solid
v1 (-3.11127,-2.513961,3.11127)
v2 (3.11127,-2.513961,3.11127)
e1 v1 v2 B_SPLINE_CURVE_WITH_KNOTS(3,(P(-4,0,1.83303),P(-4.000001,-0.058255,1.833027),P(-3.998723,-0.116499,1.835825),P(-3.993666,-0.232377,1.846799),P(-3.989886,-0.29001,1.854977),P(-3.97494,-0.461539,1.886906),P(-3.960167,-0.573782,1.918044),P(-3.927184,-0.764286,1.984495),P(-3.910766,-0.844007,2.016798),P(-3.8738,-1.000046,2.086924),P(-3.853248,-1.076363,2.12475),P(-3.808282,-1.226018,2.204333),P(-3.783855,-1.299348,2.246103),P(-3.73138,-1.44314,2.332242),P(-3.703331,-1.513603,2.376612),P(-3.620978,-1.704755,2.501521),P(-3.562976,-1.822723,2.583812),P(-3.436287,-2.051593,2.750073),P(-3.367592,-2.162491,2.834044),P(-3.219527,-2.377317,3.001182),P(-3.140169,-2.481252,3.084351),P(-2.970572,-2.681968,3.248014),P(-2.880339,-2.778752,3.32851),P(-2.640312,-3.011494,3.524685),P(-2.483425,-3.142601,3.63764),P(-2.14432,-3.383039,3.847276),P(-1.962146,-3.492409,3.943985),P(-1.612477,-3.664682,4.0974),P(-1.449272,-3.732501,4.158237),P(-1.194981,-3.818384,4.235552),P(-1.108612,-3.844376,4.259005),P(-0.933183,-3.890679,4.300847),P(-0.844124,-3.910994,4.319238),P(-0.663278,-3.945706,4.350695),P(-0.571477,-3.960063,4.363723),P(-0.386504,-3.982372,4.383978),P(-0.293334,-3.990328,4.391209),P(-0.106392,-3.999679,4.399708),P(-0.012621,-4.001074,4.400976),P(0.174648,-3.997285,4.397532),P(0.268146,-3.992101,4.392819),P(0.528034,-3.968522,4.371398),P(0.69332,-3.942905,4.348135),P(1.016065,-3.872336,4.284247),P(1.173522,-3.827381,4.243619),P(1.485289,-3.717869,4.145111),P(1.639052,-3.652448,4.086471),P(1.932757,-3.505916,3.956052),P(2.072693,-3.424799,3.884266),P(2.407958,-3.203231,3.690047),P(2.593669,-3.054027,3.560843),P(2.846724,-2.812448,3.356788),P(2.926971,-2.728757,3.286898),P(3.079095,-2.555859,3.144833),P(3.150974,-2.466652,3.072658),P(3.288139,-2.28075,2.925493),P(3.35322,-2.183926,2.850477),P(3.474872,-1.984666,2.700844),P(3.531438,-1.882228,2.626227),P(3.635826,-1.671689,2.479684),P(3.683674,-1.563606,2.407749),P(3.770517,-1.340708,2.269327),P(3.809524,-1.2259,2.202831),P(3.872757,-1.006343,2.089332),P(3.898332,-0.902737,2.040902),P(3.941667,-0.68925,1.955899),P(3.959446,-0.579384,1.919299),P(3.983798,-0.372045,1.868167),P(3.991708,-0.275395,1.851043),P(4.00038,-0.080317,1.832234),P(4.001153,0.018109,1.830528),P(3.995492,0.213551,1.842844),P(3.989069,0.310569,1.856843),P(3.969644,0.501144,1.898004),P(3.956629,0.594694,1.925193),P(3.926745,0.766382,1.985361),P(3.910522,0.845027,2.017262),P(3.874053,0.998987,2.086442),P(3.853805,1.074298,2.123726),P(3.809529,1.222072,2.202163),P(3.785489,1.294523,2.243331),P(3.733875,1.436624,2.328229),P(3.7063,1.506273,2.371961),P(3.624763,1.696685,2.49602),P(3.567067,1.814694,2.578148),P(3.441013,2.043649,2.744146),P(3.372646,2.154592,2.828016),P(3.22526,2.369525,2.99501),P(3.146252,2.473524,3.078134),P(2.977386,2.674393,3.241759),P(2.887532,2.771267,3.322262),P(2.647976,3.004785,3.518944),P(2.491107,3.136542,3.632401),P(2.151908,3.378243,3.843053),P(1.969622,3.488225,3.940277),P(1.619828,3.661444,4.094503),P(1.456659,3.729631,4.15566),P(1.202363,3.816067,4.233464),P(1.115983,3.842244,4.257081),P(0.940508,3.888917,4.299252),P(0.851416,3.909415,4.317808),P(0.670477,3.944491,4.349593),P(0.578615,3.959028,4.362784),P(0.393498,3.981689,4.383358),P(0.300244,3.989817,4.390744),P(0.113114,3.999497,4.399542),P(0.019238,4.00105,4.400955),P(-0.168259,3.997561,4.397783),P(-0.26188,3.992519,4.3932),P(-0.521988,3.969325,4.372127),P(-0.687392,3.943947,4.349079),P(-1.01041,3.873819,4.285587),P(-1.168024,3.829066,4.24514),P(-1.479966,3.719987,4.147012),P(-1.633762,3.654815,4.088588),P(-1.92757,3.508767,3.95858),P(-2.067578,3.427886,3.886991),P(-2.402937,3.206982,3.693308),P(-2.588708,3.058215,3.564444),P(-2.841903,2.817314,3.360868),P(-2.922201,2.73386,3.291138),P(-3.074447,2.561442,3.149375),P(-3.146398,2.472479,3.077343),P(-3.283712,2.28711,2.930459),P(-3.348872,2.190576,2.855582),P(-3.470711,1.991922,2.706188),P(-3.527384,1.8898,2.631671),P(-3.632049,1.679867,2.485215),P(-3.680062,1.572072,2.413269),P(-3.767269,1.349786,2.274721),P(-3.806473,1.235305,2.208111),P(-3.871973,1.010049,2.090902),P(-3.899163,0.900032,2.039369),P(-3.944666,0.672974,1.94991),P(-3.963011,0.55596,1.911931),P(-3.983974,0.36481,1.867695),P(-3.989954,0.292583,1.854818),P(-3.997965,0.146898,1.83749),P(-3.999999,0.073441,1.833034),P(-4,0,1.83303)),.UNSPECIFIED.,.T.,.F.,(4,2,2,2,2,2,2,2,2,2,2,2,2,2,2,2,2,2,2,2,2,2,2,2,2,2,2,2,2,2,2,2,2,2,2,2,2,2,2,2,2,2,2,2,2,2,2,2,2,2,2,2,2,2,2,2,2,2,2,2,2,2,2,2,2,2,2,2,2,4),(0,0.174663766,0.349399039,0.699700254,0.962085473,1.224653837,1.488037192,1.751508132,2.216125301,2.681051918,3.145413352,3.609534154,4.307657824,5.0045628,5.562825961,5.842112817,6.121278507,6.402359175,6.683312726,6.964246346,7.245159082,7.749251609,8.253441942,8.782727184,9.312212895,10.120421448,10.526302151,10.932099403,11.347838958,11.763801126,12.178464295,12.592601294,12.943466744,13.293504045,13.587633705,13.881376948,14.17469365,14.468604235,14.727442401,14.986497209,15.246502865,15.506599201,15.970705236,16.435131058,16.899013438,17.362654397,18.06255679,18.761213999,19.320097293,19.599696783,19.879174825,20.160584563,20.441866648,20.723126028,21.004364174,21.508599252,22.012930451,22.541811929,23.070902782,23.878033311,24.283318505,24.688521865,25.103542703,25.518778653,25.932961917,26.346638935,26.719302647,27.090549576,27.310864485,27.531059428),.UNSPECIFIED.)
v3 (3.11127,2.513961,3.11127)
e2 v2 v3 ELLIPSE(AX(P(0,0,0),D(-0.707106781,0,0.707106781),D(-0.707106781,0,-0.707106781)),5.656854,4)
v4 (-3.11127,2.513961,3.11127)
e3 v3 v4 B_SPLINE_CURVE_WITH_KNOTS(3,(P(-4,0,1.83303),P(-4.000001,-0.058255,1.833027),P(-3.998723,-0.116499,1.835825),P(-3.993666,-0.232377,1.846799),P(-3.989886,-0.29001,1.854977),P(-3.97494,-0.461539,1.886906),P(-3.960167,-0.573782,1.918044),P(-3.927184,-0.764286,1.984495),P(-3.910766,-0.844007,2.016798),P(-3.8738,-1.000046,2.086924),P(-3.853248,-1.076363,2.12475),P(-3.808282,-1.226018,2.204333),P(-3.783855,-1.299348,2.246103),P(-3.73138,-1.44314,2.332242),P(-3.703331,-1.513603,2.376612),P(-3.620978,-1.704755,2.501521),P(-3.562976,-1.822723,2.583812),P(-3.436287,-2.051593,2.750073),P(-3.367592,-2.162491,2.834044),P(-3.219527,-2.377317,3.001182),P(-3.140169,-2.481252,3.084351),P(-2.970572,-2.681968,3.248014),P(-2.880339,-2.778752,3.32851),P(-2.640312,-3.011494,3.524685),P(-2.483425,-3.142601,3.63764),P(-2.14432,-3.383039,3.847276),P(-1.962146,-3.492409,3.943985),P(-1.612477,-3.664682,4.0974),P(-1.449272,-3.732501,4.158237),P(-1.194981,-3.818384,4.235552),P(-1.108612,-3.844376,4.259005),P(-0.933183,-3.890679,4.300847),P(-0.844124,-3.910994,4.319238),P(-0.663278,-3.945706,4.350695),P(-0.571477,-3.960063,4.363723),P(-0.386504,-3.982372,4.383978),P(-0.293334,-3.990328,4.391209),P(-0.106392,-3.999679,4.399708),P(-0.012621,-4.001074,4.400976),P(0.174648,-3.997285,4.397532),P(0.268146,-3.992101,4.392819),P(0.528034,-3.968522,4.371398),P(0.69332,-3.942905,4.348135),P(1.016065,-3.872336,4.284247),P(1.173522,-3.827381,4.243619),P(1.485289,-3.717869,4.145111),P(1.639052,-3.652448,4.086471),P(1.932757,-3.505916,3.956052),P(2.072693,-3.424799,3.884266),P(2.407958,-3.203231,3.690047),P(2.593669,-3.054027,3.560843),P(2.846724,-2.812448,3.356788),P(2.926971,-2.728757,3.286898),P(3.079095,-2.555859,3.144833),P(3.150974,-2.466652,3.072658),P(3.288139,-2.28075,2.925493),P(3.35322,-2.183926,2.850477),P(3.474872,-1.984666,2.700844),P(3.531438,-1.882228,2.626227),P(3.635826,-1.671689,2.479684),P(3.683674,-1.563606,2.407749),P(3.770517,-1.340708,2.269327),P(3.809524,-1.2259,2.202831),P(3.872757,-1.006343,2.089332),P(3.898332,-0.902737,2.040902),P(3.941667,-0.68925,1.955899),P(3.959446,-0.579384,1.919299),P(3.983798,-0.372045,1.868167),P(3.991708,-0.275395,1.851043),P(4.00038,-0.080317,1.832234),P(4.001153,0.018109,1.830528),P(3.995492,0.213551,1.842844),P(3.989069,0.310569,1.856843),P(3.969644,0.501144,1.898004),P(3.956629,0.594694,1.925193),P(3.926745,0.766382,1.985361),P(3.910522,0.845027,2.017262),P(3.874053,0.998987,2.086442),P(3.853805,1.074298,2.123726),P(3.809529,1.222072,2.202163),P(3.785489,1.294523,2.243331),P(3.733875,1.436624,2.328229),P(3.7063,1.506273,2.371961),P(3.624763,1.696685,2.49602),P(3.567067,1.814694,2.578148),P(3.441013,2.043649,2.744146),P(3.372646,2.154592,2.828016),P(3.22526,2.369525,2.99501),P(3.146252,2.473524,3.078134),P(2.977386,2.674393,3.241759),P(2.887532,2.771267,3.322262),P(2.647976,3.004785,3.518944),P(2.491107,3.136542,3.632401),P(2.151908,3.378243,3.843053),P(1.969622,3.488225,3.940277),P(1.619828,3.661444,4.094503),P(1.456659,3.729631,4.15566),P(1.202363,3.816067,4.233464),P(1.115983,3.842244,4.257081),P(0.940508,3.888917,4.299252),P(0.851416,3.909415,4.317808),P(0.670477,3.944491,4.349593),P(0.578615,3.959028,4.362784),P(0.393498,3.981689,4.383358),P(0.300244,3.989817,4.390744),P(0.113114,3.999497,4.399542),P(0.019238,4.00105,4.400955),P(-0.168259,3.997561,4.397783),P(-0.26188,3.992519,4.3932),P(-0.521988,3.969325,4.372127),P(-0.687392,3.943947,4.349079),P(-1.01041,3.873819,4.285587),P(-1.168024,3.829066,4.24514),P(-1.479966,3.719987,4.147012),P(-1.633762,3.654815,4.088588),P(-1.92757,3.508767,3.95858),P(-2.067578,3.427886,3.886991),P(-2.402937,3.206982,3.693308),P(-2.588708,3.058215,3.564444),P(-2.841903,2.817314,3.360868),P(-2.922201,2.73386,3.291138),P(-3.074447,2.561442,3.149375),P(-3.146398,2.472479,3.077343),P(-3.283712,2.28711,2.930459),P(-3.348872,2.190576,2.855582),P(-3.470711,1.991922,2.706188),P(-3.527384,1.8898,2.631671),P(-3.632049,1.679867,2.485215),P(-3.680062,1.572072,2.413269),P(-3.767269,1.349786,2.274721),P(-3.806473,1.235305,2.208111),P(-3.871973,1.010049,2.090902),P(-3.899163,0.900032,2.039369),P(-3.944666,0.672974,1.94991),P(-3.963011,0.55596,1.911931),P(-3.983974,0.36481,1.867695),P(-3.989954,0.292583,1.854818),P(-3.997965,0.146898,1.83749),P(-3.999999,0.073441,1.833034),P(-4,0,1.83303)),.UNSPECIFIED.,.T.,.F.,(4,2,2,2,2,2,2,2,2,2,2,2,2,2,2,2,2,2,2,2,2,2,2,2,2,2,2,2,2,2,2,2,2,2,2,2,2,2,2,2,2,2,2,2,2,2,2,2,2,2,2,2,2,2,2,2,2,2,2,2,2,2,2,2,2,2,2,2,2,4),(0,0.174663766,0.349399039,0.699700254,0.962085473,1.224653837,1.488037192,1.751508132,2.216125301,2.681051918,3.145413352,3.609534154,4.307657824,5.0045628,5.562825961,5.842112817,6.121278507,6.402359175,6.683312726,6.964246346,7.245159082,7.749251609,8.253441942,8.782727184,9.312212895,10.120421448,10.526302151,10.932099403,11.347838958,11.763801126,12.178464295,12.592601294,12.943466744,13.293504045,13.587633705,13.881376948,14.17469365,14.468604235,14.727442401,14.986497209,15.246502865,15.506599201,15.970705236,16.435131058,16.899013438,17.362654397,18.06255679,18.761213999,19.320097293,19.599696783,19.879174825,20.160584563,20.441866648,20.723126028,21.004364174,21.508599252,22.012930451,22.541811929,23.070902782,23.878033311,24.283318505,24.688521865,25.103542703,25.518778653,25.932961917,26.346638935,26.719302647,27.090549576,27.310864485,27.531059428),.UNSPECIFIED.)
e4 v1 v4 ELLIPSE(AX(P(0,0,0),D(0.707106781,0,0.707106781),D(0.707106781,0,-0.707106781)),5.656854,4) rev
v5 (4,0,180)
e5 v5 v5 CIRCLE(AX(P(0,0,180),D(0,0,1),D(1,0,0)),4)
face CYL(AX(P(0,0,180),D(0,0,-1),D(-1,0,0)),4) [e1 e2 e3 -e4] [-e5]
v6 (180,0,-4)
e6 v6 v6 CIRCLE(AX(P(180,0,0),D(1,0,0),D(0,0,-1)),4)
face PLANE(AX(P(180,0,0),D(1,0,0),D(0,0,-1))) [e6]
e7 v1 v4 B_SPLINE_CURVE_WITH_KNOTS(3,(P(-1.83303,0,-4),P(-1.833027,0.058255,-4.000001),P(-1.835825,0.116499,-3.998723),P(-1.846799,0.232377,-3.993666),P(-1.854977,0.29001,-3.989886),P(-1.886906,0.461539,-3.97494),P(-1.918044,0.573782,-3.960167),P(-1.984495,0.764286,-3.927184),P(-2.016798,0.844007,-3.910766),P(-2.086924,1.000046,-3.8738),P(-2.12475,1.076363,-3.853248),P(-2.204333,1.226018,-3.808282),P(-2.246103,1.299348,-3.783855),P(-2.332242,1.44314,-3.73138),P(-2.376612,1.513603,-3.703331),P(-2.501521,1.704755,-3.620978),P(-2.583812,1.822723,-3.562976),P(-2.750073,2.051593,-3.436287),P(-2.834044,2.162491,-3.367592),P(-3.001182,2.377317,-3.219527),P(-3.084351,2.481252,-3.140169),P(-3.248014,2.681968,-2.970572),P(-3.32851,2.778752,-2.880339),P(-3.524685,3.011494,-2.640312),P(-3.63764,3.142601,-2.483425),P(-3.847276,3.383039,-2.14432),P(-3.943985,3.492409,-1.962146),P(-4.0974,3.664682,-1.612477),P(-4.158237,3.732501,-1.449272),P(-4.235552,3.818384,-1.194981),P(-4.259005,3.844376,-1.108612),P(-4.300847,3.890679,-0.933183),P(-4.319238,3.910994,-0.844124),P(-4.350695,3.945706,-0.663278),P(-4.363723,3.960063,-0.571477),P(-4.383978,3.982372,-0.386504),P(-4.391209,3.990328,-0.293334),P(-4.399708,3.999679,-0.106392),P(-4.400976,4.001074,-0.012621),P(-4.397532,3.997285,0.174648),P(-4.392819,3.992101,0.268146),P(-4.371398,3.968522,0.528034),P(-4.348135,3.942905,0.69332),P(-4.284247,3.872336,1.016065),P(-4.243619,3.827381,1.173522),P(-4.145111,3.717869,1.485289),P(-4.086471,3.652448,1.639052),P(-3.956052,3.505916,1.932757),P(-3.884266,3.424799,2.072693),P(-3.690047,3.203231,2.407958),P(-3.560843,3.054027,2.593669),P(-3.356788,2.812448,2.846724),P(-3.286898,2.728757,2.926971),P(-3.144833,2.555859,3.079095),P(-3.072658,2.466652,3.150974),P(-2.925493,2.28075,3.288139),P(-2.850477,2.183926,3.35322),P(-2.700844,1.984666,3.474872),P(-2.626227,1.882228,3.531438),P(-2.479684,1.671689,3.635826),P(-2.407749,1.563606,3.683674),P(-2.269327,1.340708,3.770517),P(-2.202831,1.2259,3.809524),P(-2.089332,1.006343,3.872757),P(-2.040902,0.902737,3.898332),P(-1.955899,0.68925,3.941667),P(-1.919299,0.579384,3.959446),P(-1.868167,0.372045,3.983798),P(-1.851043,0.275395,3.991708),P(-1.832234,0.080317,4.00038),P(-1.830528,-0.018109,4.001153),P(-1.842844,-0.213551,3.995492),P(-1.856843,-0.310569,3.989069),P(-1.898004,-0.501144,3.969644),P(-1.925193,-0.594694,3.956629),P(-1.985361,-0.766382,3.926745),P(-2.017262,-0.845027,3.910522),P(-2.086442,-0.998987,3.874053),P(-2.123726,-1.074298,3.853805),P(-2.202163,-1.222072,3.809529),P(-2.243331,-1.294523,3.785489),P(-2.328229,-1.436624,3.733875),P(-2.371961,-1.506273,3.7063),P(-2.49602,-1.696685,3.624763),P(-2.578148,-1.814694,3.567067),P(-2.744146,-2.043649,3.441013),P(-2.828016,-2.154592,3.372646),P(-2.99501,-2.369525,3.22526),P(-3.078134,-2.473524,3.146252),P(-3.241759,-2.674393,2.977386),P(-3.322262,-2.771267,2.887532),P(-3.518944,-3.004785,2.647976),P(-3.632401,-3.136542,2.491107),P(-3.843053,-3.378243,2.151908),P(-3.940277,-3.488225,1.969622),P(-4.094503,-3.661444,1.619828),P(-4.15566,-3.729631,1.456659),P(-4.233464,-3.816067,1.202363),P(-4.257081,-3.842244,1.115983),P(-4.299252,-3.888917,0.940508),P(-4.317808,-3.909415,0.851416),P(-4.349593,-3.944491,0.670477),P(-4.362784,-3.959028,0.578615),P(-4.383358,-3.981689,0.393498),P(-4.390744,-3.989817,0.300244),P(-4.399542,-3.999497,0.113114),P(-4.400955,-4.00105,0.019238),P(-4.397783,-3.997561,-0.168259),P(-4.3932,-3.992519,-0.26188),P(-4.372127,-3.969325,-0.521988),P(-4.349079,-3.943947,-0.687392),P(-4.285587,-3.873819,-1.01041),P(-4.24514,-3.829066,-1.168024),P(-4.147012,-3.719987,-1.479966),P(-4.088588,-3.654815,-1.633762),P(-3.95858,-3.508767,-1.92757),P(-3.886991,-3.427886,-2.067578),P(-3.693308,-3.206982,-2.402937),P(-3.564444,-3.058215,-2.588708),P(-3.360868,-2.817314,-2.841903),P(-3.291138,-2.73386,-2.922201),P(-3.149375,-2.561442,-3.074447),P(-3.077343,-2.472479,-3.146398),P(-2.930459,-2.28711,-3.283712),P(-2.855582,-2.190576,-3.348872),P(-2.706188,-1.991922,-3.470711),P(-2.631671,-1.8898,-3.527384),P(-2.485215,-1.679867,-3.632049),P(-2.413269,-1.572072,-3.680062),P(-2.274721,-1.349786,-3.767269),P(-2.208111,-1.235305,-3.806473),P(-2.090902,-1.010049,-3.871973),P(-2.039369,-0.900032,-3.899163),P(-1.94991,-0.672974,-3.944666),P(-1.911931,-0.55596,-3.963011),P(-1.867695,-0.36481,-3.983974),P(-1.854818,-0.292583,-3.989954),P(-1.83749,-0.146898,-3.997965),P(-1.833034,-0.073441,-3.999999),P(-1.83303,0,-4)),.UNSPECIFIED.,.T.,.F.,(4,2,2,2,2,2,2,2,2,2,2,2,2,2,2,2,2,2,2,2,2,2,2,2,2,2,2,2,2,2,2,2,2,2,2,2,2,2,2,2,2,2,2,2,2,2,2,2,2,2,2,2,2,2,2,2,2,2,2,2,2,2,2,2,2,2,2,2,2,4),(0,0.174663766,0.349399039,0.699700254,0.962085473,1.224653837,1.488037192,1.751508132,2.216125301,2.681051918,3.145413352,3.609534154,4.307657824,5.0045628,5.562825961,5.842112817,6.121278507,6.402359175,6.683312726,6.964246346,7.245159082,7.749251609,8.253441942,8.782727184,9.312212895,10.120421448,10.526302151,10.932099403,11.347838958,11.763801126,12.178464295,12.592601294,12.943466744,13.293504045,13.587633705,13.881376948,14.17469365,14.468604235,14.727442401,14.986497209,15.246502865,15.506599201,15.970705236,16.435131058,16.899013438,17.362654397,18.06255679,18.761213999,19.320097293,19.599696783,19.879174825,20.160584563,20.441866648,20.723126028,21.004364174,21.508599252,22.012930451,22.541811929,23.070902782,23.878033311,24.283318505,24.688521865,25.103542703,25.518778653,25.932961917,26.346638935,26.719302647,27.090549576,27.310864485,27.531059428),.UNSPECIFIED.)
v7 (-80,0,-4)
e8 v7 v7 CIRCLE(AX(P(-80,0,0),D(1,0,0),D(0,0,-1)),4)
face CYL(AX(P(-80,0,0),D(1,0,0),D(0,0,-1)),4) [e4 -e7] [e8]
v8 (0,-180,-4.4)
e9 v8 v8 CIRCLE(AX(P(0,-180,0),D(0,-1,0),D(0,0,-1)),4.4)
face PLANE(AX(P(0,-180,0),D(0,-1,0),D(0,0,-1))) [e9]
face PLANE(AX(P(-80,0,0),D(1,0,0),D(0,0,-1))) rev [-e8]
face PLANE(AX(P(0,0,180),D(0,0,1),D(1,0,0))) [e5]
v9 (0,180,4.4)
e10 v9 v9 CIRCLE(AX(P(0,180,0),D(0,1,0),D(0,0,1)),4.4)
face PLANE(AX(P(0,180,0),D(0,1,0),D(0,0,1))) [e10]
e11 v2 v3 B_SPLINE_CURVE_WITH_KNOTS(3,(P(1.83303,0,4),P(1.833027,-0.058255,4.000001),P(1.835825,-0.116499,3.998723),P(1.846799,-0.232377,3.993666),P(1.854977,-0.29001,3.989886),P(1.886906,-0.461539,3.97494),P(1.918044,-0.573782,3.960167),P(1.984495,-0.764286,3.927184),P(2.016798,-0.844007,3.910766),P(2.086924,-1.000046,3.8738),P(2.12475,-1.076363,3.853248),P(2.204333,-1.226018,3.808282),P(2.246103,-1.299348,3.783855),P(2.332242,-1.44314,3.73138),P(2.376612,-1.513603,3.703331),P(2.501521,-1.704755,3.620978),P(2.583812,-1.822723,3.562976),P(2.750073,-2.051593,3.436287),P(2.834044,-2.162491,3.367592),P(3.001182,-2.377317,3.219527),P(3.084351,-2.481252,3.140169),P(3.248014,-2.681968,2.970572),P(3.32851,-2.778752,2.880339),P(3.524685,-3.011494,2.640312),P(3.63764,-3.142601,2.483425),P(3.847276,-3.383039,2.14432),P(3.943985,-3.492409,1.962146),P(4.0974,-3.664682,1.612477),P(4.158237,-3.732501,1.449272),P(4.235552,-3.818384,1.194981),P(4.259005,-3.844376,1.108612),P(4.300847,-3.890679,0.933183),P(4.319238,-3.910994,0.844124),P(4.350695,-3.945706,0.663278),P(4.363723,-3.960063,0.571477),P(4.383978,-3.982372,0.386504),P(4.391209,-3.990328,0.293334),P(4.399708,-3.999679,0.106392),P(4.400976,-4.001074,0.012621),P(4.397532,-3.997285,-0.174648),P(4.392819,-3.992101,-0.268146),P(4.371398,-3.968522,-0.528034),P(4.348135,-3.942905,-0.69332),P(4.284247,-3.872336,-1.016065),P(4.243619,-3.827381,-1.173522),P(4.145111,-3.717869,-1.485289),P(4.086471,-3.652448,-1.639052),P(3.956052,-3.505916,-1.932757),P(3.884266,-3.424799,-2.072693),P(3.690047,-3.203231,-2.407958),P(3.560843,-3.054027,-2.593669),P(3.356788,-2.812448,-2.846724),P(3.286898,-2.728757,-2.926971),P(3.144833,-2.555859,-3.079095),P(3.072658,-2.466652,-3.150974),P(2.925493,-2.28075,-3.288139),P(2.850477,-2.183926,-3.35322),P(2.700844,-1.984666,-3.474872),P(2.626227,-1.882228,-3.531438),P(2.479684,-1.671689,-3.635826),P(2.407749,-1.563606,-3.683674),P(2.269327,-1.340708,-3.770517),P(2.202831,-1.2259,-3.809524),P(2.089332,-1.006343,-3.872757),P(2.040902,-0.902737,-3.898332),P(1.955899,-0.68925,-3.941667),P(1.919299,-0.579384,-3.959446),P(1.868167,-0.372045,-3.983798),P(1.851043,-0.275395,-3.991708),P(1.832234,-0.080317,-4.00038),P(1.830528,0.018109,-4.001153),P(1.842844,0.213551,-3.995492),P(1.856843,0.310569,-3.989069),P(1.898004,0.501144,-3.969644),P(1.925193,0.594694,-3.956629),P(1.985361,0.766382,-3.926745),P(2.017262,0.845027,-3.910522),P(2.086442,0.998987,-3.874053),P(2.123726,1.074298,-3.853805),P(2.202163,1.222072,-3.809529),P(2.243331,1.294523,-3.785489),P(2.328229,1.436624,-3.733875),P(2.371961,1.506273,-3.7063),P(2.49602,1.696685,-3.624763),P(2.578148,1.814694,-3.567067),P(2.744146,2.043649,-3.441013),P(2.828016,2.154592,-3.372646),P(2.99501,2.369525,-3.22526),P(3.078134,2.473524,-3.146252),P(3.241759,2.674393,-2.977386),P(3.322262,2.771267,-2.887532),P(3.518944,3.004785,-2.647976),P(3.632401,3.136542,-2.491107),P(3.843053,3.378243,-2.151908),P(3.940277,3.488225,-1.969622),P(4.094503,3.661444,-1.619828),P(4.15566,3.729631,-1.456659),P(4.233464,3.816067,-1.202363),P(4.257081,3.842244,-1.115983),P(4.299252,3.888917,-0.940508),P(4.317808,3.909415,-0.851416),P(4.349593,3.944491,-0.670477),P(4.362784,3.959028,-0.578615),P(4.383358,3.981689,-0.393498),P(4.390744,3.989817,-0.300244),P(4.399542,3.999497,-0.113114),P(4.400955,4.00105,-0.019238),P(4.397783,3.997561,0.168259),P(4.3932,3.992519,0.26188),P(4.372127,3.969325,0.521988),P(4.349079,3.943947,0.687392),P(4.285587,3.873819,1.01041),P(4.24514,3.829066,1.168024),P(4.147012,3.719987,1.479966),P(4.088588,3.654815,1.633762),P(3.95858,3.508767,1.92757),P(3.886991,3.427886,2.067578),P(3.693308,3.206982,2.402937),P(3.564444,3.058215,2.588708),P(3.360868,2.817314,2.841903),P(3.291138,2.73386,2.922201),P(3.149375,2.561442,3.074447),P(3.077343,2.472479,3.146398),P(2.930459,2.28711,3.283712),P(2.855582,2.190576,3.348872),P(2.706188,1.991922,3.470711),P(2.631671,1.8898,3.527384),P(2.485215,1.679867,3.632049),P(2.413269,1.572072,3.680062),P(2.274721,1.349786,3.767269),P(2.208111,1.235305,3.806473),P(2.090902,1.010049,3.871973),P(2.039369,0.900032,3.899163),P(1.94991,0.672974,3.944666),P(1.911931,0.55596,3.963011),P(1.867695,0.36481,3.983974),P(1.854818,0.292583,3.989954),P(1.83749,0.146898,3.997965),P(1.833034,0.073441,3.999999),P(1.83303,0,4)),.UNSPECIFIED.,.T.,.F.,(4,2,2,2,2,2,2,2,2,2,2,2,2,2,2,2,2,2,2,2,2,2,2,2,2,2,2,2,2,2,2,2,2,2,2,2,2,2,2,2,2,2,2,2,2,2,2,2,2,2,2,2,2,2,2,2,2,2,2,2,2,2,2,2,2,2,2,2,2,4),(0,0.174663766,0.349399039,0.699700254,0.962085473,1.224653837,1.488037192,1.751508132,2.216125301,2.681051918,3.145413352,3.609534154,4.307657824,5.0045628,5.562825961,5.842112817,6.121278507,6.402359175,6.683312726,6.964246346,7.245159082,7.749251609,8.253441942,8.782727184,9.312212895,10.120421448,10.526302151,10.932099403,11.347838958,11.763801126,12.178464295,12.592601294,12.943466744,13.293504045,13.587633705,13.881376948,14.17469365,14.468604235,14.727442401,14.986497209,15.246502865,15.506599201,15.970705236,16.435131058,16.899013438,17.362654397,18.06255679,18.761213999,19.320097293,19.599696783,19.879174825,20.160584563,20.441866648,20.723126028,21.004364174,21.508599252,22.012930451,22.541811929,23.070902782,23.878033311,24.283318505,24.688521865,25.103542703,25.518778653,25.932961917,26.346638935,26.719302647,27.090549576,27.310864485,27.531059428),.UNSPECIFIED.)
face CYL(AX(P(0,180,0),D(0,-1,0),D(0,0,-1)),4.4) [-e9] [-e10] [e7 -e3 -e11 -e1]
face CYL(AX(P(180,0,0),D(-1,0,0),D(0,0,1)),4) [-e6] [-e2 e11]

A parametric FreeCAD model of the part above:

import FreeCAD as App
import Part
import Sketcher

V = App.Vector
Q = App.Units.Quantity

doc = App.newDocument("Part")
body = doc.addObject("PartDesign::Body", "Body")

sketch1 = body.newObject("Sketcher::SketchObject", "Sketch")
sketch1.AttachmentSupport = (doc.getObject("XZ_Plane"), [""])
sketch1.MapMode = "FlatFace"
sketch1.addGeometry(Part.Circle(V(0, 0, 0), V(0, 0, 1), 4.4), False)
sketch1.addConstraint(Sketcher.Constraint("Coincident", 0, 3, -1, 1))
sketch1.addConstraint(Sketcher.Constraint("Diameter", 0, Q("8.8 mm")))
pad1 = body.newObject("PartDesign::Pad", "Pad")
pad1.Profile = sketch1
pad1.Length = 180
pad1.Reversed = True

sketch2 = body.newObject("Sketcher::SketchObject", "Sketch001")
sketch2.AttachmentSupport = (doc.getObject("XZ_Plane"), [""])
sketch2.MapMode = "FlatFace"
sketch2.addGeometry(Part.Circle(V(0, 0, 0), V(0, 0, 1), 4.4), False)
sketch2.addConstraint(Sketcher.Constraint("Coincident", 0, 3, -1, 1))
sketch2.addConstraint(Sketcher.Constraint("Diameter", 0, Q("8.8 mm")))
pad2 = body.newObject("PartDesign::Pad", "Pad001")
pad2.Profile = sketch2
pad2.Length = 180

sketch3 = body.newObject("Sketcher::SketchObject", "Sketch002")
sketch3.AttachmentSupport = (doc.getObject("YZ_Plane"), [""])
sketch3.MapMode = "FlatFace"
sketch3.addGeometry(Part.Circle(V(0, 0, 0), V(0, 0, 1), 4), False)
sketch3.addConstraint(Sketcher.Constraint("Coincident", 0, 3, -1, 1))
sketch3.addConstraint(Sketcher.Constraint("Diameter", 0, Q("8 mm")))
pad3 = body.newObject("PartDesign::Pad", "Pad002")
pad3.Profile = sketch3
pad3.Length = 180

sketch4 = body.newObject("Sketcher::SketchObject", "Sketch003")
sketch4.AttachmentSupport = (doc.getObject("YZ_Plane"), [""])
sketch4.MapMode = "FlatFace"
sketch4.addGeometry(Part.Circle(V(0, 0, 0), V(0, 0, 1), 4), False)
sketch4.addConstraint(Sketcher.Constraint("Coincident", 0, 3, -1, 1))
sketch4.addConstraint(Sketcher.Constraint("Diameter", 0, Q("8 mm")))
pad4 = body.newObject("PartDesign::Pad", "Pad003")
pad4.Profile = sketch4
pad4.Length = 80
pad4.Reversed = True

sketch5 = body.newObject("Sketcher::SketchObject", "Sketch004")
sketch5.AttachmentSupport = (doc.getObject("XY_Plane"), [""])
sketch5.MapMode = "FlatFace"
sketch5.addGeometry(Part.Circle(V(0, 0, 0), V(0, 0, 1), 4), False)
sketch5.addConstraint(Sketcher.Constraint("Coincident", 0, 3, -1, 1))
sketch5.addConstraint(Sketcher.Constraint("Diameter", 0, Q("8 mm")))
pad5 = body.newObject("PartDesign::Pad", "Pad004")
pad5.Profile = sketch5
pad5.Length = 180

doc.recompute()
